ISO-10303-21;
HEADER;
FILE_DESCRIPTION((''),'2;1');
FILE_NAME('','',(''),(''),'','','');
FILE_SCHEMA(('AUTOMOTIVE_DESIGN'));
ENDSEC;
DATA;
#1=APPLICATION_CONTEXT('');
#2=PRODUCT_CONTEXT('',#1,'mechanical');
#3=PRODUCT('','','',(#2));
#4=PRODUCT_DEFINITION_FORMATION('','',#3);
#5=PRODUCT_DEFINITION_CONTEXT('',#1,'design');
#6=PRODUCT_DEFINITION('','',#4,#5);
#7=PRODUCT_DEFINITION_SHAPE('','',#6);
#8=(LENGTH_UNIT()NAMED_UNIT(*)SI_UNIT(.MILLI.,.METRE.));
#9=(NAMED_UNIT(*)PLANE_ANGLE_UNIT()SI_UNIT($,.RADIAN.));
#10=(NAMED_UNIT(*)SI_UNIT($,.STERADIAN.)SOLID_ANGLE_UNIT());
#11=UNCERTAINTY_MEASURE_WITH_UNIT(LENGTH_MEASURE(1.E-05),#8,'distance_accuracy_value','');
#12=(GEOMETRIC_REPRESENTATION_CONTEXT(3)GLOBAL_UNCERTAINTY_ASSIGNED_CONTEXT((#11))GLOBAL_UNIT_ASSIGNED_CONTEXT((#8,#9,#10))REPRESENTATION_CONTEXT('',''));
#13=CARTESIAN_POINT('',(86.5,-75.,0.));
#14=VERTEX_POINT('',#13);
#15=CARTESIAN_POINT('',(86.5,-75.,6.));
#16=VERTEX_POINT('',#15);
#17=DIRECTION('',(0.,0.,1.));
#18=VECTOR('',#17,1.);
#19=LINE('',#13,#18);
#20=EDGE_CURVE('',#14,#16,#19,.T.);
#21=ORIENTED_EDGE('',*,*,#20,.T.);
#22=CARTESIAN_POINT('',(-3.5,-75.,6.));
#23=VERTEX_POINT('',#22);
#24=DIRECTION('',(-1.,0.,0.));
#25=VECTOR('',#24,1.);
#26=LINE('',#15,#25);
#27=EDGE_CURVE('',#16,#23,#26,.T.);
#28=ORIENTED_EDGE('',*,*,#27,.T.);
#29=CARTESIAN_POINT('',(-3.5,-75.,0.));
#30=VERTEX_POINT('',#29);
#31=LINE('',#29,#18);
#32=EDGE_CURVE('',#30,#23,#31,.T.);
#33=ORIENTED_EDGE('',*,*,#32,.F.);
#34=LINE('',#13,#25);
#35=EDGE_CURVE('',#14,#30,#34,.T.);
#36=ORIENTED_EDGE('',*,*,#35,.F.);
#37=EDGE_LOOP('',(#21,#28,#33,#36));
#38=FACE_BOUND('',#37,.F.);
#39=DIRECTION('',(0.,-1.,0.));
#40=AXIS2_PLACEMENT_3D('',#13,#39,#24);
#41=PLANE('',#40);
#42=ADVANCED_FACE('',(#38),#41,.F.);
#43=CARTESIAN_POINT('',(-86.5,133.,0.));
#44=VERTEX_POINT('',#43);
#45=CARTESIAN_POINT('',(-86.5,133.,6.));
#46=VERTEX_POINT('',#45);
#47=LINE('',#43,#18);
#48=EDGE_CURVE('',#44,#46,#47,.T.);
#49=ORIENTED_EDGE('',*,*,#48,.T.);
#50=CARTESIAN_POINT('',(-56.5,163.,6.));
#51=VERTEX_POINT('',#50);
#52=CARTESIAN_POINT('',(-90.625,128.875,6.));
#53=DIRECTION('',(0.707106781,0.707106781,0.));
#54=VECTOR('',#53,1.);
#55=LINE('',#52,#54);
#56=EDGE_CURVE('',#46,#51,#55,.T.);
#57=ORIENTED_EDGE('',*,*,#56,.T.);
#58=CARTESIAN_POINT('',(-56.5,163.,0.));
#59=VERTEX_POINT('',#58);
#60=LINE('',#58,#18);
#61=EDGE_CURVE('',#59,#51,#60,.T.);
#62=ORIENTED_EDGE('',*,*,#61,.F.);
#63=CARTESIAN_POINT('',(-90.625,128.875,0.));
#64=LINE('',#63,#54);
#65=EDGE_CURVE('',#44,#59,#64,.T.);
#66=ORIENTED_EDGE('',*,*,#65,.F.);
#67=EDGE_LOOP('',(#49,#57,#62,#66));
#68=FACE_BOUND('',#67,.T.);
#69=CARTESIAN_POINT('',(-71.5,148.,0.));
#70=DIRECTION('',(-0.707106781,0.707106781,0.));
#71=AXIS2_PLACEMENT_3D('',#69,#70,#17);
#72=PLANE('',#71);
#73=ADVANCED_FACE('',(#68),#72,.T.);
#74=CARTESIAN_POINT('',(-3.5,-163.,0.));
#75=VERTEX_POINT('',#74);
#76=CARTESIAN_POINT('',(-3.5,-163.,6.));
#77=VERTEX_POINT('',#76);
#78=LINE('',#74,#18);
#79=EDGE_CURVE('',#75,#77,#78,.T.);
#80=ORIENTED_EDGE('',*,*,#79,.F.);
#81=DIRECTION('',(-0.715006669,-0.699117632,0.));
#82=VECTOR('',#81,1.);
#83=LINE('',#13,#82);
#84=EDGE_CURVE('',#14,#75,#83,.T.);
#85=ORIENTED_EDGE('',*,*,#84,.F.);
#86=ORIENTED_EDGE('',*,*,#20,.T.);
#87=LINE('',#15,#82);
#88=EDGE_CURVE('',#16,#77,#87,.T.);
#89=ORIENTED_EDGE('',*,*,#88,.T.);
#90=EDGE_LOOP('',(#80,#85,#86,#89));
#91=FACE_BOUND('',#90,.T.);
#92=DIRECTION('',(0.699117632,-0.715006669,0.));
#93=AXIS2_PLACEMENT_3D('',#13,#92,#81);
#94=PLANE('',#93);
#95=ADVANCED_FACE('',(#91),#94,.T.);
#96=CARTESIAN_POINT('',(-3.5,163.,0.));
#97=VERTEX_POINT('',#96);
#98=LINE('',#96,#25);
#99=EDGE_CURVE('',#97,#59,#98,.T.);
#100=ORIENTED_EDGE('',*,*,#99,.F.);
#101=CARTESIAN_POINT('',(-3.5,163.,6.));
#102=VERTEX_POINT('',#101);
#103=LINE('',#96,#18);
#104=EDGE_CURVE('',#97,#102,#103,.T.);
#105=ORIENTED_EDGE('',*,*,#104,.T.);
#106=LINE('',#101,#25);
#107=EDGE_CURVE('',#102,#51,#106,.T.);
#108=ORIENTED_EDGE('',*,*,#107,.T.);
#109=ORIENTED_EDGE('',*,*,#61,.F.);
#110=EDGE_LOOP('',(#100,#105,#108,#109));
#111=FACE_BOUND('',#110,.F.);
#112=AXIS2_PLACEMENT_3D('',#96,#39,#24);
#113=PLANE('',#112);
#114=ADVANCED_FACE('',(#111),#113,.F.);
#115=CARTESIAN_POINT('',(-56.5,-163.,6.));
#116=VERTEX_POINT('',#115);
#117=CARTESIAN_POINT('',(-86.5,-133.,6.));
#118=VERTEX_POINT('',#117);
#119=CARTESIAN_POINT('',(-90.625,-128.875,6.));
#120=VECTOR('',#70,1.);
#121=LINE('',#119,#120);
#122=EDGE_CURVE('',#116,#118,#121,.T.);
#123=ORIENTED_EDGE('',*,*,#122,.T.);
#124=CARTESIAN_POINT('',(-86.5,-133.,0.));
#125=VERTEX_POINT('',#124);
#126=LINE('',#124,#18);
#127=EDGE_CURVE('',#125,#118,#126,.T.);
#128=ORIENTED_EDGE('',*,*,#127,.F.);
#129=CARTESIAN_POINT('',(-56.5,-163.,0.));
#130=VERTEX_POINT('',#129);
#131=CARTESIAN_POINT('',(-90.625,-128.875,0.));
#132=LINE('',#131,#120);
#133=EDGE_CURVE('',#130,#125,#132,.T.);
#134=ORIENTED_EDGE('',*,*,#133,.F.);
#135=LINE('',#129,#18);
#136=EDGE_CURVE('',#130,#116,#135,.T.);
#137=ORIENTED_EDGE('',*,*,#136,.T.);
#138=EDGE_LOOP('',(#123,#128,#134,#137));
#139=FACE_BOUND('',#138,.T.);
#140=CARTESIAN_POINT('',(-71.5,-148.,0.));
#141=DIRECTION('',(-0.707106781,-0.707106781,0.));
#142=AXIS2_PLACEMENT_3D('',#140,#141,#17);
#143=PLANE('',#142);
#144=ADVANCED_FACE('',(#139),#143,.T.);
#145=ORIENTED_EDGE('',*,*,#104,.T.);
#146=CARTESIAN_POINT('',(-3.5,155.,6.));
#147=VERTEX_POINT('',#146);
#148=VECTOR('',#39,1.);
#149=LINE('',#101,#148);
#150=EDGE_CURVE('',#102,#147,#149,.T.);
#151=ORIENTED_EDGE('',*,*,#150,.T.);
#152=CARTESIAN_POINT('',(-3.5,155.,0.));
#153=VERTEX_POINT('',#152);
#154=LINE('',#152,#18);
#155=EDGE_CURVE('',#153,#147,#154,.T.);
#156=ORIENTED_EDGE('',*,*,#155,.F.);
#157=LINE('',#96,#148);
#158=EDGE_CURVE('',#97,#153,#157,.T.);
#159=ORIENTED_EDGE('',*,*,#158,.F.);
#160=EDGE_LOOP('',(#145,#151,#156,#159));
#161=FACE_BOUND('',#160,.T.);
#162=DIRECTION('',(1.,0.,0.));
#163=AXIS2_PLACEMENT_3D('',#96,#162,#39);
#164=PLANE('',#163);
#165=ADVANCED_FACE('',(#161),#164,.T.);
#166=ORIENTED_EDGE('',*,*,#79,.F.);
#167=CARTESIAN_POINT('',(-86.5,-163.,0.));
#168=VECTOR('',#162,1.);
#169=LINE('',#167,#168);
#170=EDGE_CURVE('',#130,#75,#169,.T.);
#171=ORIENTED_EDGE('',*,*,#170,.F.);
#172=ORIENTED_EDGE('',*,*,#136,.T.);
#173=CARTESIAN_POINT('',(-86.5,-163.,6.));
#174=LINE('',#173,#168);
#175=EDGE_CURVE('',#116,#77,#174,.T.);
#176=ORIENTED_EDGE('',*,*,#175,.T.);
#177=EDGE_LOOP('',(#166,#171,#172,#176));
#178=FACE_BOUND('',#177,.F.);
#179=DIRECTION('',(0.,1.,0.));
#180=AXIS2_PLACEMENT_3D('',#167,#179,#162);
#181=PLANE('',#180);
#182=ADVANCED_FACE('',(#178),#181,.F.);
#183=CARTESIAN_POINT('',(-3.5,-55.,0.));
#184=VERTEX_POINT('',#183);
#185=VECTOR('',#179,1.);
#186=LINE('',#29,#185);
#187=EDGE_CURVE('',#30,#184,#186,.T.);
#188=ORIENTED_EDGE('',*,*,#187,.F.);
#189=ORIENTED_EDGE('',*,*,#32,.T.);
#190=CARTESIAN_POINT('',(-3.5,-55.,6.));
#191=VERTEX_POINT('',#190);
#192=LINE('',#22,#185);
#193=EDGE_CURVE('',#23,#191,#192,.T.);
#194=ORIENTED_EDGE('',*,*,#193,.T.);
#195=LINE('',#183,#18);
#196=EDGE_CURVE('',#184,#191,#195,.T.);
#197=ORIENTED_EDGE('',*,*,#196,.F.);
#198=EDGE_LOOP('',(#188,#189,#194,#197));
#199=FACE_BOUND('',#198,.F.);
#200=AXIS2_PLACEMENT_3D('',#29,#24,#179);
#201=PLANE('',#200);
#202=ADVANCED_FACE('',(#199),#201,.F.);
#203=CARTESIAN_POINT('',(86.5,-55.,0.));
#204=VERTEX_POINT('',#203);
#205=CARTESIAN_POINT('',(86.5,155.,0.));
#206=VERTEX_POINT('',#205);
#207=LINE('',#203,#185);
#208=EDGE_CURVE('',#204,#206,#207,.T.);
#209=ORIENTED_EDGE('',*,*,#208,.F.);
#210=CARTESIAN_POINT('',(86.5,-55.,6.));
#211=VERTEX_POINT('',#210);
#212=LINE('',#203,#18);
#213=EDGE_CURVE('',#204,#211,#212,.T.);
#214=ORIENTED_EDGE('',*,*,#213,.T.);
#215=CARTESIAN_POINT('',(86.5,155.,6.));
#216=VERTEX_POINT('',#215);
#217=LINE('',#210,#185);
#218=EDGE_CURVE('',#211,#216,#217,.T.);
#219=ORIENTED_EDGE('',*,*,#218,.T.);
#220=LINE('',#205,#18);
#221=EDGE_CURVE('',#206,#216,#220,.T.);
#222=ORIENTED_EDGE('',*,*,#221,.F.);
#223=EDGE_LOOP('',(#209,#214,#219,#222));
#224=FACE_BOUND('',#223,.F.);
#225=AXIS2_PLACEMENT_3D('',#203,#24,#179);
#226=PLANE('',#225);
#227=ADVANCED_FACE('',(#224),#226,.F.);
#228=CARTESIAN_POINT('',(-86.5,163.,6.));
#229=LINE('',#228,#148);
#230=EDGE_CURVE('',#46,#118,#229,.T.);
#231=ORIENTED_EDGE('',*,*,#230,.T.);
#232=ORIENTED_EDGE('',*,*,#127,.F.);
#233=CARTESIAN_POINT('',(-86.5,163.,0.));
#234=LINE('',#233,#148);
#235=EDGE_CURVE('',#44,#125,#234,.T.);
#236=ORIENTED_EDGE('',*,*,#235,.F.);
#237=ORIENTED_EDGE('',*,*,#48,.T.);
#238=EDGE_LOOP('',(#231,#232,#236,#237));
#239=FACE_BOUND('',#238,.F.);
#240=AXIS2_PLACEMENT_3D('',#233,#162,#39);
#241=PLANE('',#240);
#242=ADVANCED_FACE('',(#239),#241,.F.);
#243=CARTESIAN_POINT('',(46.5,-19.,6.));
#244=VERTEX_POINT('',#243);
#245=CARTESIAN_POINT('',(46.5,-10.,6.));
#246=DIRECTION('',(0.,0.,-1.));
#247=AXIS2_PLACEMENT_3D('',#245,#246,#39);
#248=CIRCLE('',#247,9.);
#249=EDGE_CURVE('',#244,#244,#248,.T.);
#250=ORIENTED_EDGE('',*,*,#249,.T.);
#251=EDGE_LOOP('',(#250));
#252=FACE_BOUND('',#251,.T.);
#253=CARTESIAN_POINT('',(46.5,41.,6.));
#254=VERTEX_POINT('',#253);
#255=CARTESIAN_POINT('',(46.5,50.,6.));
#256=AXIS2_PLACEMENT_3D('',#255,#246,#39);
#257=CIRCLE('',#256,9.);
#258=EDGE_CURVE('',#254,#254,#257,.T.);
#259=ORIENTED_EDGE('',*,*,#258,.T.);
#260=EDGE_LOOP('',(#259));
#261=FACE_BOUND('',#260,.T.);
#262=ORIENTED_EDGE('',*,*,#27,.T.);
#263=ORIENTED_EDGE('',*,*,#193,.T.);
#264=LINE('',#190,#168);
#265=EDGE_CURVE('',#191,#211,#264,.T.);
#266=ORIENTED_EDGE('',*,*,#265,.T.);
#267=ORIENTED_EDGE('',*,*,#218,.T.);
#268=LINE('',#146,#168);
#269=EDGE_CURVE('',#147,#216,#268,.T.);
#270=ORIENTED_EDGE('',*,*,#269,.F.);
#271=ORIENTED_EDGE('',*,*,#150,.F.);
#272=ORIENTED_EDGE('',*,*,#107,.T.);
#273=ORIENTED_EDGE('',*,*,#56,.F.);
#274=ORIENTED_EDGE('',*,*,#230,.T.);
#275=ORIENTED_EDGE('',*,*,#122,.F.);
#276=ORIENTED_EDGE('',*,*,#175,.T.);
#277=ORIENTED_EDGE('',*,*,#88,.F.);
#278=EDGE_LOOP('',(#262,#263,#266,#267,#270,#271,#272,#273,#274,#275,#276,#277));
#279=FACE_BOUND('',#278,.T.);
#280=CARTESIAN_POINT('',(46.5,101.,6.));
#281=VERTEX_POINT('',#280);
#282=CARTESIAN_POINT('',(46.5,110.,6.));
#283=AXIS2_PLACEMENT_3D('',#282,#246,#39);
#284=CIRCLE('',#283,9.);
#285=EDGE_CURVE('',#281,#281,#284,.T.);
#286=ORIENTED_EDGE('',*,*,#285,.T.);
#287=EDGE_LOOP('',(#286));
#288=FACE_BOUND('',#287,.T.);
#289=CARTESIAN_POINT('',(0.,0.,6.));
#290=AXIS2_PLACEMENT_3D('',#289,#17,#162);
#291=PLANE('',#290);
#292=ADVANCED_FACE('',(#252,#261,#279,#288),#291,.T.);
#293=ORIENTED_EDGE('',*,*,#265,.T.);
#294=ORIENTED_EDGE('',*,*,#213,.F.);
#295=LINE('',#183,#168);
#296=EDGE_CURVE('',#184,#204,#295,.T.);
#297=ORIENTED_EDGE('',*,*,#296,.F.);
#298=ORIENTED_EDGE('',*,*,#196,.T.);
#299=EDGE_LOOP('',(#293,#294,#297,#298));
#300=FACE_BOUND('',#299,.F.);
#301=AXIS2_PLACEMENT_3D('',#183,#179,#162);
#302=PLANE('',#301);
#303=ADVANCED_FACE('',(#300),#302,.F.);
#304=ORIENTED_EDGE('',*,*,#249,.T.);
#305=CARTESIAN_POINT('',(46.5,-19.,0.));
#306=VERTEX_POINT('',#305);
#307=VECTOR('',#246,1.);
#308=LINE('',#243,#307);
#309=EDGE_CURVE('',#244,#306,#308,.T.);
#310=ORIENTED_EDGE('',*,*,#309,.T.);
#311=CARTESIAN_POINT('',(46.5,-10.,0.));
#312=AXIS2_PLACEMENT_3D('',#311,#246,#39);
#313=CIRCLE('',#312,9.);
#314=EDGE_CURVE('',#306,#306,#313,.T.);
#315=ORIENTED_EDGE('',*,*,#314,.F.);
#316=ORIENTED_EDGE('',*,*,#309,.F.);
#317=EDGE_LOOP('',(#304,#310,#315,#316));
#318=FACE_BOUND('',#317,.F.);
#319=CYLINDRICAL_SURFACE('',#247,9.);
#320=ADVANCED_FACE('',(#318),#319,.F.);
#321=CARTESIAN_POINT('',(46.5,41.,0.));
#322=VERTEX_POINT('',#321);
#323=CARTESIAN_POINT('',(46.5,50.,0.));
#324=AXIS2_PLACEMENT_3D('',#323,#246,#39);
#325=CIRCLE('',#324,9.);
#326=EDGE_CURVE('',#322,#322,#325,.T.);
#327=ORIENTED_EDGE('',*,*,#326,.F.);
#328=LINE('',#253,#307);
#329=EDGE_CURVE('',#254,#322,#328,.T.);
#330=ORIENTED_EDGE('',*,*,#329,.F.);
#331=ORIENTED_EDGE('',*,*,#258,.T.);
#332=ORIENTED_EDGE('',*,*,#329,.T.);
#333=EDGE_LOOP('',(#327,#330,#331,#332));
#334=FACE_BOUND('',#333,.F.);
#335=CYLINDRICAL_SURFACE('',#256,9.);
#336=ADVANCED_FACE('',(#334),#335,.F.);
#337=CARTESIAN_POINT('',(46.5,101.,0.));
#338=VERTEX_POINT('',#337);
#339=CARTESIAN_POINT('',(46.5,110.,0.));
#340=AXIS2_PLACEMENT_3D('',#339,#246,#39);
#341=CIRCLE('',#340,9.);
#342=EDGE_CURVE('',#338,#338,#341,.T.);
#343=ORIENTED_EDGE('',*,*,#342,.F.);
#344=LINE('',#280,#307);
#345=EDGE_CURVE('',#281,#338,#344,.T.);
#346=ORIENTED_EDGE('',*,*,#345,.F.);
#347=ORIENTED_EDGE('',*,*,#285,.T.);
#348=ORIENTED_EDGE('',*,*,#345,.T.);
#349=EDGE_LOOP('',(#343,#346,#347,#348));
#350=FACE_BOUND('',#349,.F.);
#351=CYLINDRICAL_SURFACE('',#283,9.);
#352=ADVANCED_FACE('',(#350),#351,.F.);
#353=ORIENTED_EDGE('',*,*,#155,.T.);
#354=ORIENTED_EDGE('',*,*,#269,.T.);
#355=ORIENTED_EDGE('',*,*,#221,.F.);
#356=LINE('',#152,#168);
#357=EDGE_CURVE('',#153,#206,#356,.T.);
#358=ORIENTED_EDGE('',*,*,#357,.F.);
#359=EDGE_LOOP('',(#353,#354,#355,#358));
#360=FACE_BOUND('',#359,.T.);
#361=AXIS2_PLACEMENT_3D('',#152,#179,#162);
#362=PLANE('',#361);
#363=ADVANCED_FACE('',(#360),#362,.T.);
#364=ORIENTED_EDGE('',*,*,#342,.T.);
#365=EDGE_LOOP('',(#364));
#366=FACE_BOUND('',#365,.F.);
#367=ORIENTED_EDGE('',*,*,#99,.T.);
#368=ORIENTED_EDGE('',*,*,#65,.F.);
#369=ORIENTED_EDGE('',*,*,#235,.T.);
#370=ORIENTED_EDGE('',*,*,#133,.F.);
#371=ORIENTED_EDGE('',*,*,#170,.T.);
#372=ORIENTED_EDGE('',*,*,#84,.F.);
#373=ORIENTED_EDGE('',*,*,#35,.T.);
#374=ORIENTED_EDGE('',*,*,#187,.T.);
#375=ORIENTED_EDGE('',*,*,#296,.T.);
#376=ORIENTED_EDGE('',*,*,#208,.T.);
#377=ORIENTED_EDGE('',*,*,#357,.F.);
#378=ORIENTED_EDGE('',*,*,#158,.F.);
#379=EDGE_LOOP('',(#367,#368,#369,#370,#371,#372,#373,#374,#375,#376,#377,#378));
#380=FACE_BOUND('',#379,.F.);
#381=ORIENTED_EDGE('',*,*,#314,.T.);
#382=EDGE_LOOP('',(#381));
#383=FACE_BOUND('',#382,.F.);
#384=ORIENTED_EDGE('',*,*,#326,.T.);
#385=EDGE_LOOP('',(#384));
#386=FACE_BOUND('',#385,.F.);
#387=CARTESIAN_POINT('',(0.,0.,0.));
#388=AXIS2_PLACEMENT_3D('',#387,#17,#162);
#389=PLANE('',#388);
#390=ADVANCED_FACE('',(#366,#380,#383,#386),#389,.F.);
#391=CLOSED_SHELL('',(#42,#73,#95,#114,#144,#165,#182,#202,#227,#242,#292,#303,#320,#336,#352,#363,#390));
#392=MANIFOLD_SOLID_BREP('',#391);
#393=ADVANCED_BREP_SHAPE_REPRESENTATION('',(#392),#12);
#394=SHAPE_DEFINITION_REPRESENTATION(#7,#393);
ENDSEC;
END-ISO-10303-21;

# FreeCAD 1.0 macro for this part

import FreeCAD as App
import Part
import Sketcher

V = App.Vector


def edges_at(feature, points):
    """Names of the edges that pass closest to the given points."""
    edges = feature.Shape.Edges
    near = lambda p: min(range(len(edges)), key=lambda i: edges[i].distToShape(Part.Vertex(*p))[0])
    return sorted({f"Edge{near(p) + 1}" for p in points})

doc = App.newDocument("Part")
body = doc.addObject("PartDesign::Body", "Body")

# Sketch on XY plane
sketch1 = body.newObject("Sketcher::SketchObject", "Sketch")
sketch1.AttachmentSupport = (doc.getObject("XY_Plane"), [""])
sketch1.MapMode = "FlatFace"
sketch1.addGeometry(Part.LineSegment(V(-3.5, 155, 0), V(-3.5, 163, 0)), False)
sketch1.addGeometry(Part.LineSegment(V(-3.5, 163, 0), V(-86.5, 163, 0)), False)
sketch1.addGeometry(Part.LineSegment(V(-86.5, 163, 0), V(-86.5, -163, 0)), False)
sketch1.addGeometry(Part.LineSegment(V(-86.5, -163, 0), V(-3.5, -163, 0)), False)
sketch1.addGeometry(Part.LineSegment(V(-3.5, -163, 0), V(86.5, -75, 0)), False)
sketch1.addGeometry(Part.LineSegment(V(86.5, -75, 0), V(-3.5, -75, 0)), False)
sketch1.addGeometry(Part.LineSegment(V(-3.5, -75, 0), V(-3.5, -55, 0)), False)
sketch1.addGeometry(Part.LineSegment(V(-3.5, -55, 0), V(86.5, -55, 0)), False)
sketch1.addGeometry(Part.LineSegment(V(86.5, -55, 0), V(86.5, 155, 0)), False)
sketch1.addGeometry(Part.LineSegment(V(86.5, 155, 0), V(-3.5, 155, 0)), False)
sketch1.addConstraint(Sketcher.Constraint("Coincident", 0, 2, 1, 1))
sketch1.addConstraint(Sketcher.Constraint("Coincident", 1, 2, 2, 1))
sketch1.addConstraint(Sketcher.Constraint("Coincident", 2, 2, 3, 1))
sketch1.addConstraint(Sketcher.Constraint("Coincident", 3, 2, 4, 1))
sketch1.addConstraint(Sketcher.Constraint("Coincident", 4, 2, 5, 1))
sketch1.addConstraint(Sketcher.Constraint("Coincident", 5, 2, 6, 1))
sketch1.addConstraint(Sketcher.Constraint("Coincident", 6, 2, 7, 1))
sketch1.addConstraint(Sketcher.Constraint("Coincident", 7, 2, 8, 1))
sketch1.addConstraint(Sketcher.Constraint("Coincident", 8, 2, 9, 1))
sketch1.addConstraint(Sketcher.Constraint("Coincident", 9, 2, 0, 1))
sketch1.addConstraint(Sketcher.Constraint("Vertical", 0))
sketch1.addConstraint(Sketcher.Constraint("Horizontal", 1))
sketch1.addConstraint(Sketcher.Constraint("Vertical", 2))
sketch1.addConstraint(Sketcher.Constraint("Horizontal", 3))
sketch1.addConstraint(Sketcher.Constraint("Horizontal", 5))
sketch1.addConstraint(Sketcher.Constraint("Vertical", 6))
sketch1.addConstraint(Sketcher.Constraint("Horizontal", 7))
sketch1.addConstraint(Sketcher.Constraint("Vertical", 8))
sketch1.addConstraint(Sketcher.Constraint("Horizontal", 9))
sketch1.addConstraint(Sketcher.Constraint("Symmetric", 0, 2, 3, 2, -1))
sketch1.addConstraint(Sketcher.Constraint("Vertical", 3, 2, 5, 2))
sketch1.addConstraint(Sketcher.Constraint("Vertical", 4, 2, 7, 2))
sketch1.addConstraint(Sketcher.Constraint("DistanceX", 1, 2, 1, 1, 83.0))
sketch1.addConstraint(Sketcher.Constraint("DistanceX", 5, 2, 5, 1, 90.0))
sketch1.addConstraint(Sketcher.Constraint("DistanceY", 2, 2, 2, 1, 326.0))
sketch1.addConstraint(Sketcher.Constraint("DistanceY", 6, 1, 6, 2, 20.0))
sketch1.addConstraint(Sketcher.Constraint("DistanceY", 0, 1, 0, 2, 8.0))
sketch1.addConstraint(Sketcher.Constraint("DistanceY", 8, 1, 8, 2, 210.0))
sketch1.addConstraint(Sketcher.Constraint("DistanceX", 0, 2, -1, 1, 3.5))
pad1 = body.newObject("PartDesign::Pad", "Pad")
pad1.Profile = sketch1
pad1.Length = 6
doc.recompute()

chamfer = body.newObject("PartDesign::Chamfer", "Chamfer")
chamfer.Base = (pad1, edges_at(pad1, [(-86.5, -163, 3), (-86.5, 163, 3)]))
chamfer.Size = 30

# Sketch on XY plane
sketch2 = body.newObject("Sketcher::SketchObject", "Sketch001")
sketch2.AttachmentSupport = (doc.getObject("XY_Plane"), [""])
sketch2.MapMode = "FlatFace"
sketch2.AttachmentOffset = App.Placement(V(0, 0, 6), App.Rotation())
sketch2.addGeometry(Part.Circle(V(46.5, 110, 0), V(0, 0, 1), 9), False)
sketch2.addGeometry(Part.Circle(V(46.5, 50, 0), V(0, 0, 1), 9), False)
sketch2.addGeometry(Part.Circle(V(46.5, -10, 0), V(0, 0, 1), 9), False)
sketch2.addConstraint(Sketcher.Constraint("Equal", 0, 1))
sketch2.addConstraint(Sketcher.Constraint("Equal", 1, 2))
sketch2.addConstraint(Sketcher.Constraint("Vertical", 0, 3, 1, 3))
sketch2.addConstraint(Sketcher.Constraint("Vertical", 1, 3, 2, 3))
sketch2.addConstraint(Sketcher.Constraint("Diameter", 0, 18.0))
sketch2.addConstraint(Sketcher.Constraint("DistanceY", -1, 1, 0, 3, 110.0))
sketch2.addConstraint(Sketcher.Constraint("DistanceY", -1, 1, 1, 3, 50.0))
sketch2.addConstraint(Sketcher.Constraint("DistanceY", 2, 3, -1, 1, 10.0))
sketch2.addConstraint(Sketcher.Constraint("DistanceX", -1, 1, 0, 3, 46.5))
doc.recompute()
hole = body.newObject("PartDesign::Hole", "Hole")
hole.Profile = sketch2
hole.ThreadType = "None"
hole.Diameter = 18
hole.DepthType = "ThroughAll"

doc.recompute()
